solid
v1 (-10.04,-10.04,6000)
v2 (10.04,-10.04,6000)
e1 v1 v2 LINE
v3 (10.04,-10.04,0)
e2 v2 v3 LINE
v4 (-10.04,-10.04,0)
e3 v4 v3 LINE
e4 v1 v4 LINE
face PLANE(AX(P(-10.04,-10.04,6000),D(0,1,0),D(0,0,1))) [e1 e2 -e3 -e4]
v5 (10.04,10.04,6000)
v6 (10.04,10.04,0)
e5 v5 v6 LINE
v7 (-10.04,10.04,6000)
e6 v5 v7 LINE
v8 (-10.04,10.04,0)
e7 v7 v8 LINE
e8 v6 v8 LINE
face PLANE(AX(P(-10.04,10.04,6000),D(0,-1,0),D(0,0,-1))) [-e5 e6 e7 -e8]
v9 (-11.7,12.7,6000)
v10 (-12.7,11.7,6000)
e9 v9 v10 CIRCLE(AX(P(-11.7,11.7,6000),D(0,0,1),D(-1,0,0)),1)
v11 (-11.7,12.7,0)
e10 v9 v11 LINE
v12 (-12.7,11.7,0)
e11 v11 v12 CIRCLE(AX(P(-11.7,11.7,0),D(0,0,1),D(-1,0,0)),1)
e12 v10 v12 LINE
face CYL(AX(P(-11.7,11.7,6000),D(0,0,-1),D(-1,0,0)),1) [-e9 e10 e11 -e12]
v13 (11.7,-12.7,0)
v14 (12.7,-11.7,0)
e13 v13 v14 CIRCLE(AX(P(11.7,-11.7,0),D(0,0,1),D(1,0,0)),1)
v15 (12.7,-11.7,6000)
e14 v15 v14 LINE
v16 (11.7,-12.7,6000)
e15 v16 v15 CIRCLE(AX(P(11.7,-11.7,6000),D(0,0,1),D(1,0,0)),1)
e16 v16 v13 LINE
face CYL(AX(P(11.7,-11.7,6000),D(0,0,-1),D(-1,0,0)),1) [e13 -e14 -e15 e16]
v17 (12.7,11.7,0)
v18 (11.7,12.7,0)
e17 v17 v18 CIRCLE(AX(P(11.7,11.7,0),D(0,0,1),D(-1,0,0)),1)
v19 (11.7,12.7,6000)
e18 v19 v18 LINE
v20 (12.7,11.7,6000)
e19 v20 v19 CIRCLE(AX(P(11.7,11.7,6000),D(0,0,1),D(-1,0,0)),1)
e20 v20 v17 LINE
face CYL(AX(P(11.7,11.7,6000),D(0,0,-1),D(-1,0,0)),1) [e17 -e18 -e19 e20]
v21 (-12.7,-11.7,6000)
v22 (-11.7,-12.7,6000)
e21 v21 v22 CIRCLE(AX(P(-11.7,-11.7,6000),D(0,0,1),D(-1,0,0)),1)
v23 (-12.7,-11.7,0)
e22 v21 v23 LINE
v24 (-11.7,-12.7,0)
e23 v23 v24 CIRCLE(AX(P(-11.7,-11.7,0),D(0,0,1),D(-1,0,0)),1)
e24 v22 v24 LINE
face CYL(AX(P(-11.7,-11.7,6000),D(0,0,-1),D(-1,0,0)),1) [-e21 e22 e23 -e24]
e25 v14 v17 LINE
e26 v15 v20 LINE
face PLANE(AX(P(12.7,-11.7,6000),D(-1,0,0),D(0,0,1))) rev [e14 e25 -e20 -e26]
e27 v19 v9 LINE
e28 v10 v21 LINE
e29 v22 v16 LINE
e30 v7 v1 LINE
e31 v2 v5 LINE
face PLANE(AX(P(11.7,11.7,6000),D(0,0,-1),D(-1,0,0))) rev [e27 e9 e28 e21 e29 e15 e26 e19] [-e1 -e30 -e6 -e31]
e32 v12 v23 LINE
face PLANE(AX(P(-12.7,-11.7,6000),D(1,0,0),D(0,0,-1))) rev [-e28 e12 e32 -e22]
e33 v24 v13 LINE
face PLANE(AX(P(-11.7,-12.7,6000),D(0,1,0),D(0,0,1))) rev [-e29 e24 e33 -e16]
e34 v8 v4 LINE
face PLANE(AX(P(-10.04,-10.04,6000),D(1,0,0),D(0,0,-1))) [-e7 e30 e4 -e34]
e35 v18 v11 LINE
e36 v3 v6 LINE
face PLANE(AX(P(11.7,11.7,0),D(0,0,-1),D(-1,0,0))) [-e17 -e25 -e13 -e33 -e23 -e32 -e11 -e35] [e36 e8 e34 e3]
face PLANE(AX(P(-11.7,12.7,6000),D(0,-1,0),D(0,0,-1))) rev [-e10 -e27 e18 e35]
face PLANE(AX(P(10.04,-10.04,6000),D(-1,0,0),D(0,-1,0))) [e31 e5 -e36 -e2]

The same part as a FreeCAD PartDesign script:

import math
import FreeCAD as App
import Part
import Sketcher

V = App.Vector

doc = App.newDocument("Part")
body = doc.addObject("PartDesign::Body", "Body")

sketch1 = doc.addObject("Sketcher::SketchObject", "Sketch")
body.addObject(sketch1)
sketch1.AttachmentSupport = (doc.XY_Plane, [""])
sketch1.MapMode = "FlatFace"
sketch1.addGeometry(Part.LineSegment(V(-11.7, -12.7, 0), V(11.7, -12.7, 0)), False)
sketch1.addGeometry(Part.ArcOfCircle(Part.Circle(V(11.7, -11.7, 0), V(0, 0, 1), 1), math.radians(-90), math.radians(0)), False)
sketch1.addGeometry(Part.LineSegment(V(12.7, -11.7, 0), V(12.7, 11.7, 0)), False)
sketch1.addGeometry(Part.ArcOfCircle(Part.Circle(V(11.7, 11.7, 0), V(0, 0, 1), 1), math.radians(0), math.radians(90)), False)
sketch1.addGeometry(Part.LineSegment(V(11.7, 12.7, 0), V(-11.7, 12.7, 0)), False)
sketch1.addGeometry(Part.ArcOfCircle(Part.Circle(V(-11.7, 11.7, 0), V(0, 0, 1), 1), math.radians(90), math.radians(180)), False)
sketch1.addGeometry(Part.LineSegment(V(-12.7, 11.7, 0), V(-12.7, -11.7, 0)), False)
sketch1.addGeometry(Part.ArcOfCircle(Part.Circle(V(-11.7, -11.7, 0), V(0, 0, 1), 1), math.radians(-180), math.radians(-90)), False)
sketch1.addGeometry(Part.LineSegment(V(10, -10, 0), V(-10, -10, 0)), False)
sketch1.addGeometry(Part.LineSegment(V(-10, -10, 0), V(-10, 10, 0)), False)
sketch1.addGeometry(Part.LineSegment(V(-10, 10, 0), V(10, 10, 0)), False)
sketch1.addGeometry(Part.LineSegment(V(10, 10, 0), V(10, -10, 0)), False)
sketch1.addConstraint(Sketcher.Constraint("Tangent", 0, 2, 1, 1))
sketch1.addConstraint(Sketcher.Constraint("Tangent", 1, 2, 2, 1))
sketch1.addConstraint(Sketcher.Constraint("Tangent", 2, 2, 3, 1))
sketch1.addConstraint(Sketcher.Constraint("Tangent", 3, 2, 4, 1))
sketch1.addConstraint(Sketcher.Constraint("Tangent", 4, 2, 5, 1))
sketch1.addConstraint(Sketcher.Constraint("Tangent", 5, 2, 6, 1))
sketch1.addConstraint(Sketcher.Constraint("Tangent", 6, 2, 7, 1))
sketch1.addConstraint(Sketcher.Constraint("Tangent", 7, 2, 0, 1))
sketch1.addConstraint(Sketcher.Constraint("Coincident", 8, 2, 9, 1))
sketch1.addConstraint(Sketcher.Constraint("Coincident", 9, 2, 10, 1))
sketch1.addConstraint(Sketcher.Constraint("Coincident", 10, 2, 11, 1))
sketch1.addConstraint(Sketcher.Constraint("Coincident", 11, 2, 8, 1))
sketch1.addConstraint(Sketcher.Constraint("Horizontal", 0))
sketch1.addConstraint(Sketcher.Constraint("Vertical", 2))
sketch1.addConstraint(Sketcher.Constraint("Horizontal", 4))
sketch1.addConstraint(Sketcher.Constraint("Vertical", 6))
sketch1.addConstraint(Sketcher.Constraint("Horizontal", 8))
sketch1.addConstraint(Sketcher.Constraint("Vertical", 9))
sketch1.addConstraint(Sketcher.Constraint("Horizontal", 10))
sketch1.addConstraint(Sketcher.Constraint("Vertical", 11))
sketch1.addConstraint(Sketcher.Constraint("Equal", 1, 3))
sketch1.addConstraint(Sketcher.Constraint("Equal", 3, 5))
sketch1.addConstraint(Sketcher.Constraint("Equal", 5, 7))
sketch1.addConstraint(Sketcher.Constraint("Symmetric", 1, 3, 5, 3, -1, 1))
sketch1.addConstraint(Sketcher.Constraint("Symmetric", 8, 2, 10, 2, -1, 1))
sketch1.addConstraint(Sketcher.Constraint("Equal", 4, 2))
sketch1.addConstraint(Sketcher.Constraint("Equal", 10, 9))
sketch1.addConstraint(Sketcher.Constraint("Radius", 1, 1.0))
sketch1.addConstraint(Sketcher.Constraint("DistanceX", 0, 1, 0, 2, 23.4))
sketch1.addConstraint(Sketcher.Constraint("DistanceX", 8, 2, 8, 1, 20.08))
pad1 = doc.addObject("PartDesign::Pad", "Pad")
body.addObject(pad1)
pad1.Profile = sketch1
pad1.Length = 6000

doc.recompute()
